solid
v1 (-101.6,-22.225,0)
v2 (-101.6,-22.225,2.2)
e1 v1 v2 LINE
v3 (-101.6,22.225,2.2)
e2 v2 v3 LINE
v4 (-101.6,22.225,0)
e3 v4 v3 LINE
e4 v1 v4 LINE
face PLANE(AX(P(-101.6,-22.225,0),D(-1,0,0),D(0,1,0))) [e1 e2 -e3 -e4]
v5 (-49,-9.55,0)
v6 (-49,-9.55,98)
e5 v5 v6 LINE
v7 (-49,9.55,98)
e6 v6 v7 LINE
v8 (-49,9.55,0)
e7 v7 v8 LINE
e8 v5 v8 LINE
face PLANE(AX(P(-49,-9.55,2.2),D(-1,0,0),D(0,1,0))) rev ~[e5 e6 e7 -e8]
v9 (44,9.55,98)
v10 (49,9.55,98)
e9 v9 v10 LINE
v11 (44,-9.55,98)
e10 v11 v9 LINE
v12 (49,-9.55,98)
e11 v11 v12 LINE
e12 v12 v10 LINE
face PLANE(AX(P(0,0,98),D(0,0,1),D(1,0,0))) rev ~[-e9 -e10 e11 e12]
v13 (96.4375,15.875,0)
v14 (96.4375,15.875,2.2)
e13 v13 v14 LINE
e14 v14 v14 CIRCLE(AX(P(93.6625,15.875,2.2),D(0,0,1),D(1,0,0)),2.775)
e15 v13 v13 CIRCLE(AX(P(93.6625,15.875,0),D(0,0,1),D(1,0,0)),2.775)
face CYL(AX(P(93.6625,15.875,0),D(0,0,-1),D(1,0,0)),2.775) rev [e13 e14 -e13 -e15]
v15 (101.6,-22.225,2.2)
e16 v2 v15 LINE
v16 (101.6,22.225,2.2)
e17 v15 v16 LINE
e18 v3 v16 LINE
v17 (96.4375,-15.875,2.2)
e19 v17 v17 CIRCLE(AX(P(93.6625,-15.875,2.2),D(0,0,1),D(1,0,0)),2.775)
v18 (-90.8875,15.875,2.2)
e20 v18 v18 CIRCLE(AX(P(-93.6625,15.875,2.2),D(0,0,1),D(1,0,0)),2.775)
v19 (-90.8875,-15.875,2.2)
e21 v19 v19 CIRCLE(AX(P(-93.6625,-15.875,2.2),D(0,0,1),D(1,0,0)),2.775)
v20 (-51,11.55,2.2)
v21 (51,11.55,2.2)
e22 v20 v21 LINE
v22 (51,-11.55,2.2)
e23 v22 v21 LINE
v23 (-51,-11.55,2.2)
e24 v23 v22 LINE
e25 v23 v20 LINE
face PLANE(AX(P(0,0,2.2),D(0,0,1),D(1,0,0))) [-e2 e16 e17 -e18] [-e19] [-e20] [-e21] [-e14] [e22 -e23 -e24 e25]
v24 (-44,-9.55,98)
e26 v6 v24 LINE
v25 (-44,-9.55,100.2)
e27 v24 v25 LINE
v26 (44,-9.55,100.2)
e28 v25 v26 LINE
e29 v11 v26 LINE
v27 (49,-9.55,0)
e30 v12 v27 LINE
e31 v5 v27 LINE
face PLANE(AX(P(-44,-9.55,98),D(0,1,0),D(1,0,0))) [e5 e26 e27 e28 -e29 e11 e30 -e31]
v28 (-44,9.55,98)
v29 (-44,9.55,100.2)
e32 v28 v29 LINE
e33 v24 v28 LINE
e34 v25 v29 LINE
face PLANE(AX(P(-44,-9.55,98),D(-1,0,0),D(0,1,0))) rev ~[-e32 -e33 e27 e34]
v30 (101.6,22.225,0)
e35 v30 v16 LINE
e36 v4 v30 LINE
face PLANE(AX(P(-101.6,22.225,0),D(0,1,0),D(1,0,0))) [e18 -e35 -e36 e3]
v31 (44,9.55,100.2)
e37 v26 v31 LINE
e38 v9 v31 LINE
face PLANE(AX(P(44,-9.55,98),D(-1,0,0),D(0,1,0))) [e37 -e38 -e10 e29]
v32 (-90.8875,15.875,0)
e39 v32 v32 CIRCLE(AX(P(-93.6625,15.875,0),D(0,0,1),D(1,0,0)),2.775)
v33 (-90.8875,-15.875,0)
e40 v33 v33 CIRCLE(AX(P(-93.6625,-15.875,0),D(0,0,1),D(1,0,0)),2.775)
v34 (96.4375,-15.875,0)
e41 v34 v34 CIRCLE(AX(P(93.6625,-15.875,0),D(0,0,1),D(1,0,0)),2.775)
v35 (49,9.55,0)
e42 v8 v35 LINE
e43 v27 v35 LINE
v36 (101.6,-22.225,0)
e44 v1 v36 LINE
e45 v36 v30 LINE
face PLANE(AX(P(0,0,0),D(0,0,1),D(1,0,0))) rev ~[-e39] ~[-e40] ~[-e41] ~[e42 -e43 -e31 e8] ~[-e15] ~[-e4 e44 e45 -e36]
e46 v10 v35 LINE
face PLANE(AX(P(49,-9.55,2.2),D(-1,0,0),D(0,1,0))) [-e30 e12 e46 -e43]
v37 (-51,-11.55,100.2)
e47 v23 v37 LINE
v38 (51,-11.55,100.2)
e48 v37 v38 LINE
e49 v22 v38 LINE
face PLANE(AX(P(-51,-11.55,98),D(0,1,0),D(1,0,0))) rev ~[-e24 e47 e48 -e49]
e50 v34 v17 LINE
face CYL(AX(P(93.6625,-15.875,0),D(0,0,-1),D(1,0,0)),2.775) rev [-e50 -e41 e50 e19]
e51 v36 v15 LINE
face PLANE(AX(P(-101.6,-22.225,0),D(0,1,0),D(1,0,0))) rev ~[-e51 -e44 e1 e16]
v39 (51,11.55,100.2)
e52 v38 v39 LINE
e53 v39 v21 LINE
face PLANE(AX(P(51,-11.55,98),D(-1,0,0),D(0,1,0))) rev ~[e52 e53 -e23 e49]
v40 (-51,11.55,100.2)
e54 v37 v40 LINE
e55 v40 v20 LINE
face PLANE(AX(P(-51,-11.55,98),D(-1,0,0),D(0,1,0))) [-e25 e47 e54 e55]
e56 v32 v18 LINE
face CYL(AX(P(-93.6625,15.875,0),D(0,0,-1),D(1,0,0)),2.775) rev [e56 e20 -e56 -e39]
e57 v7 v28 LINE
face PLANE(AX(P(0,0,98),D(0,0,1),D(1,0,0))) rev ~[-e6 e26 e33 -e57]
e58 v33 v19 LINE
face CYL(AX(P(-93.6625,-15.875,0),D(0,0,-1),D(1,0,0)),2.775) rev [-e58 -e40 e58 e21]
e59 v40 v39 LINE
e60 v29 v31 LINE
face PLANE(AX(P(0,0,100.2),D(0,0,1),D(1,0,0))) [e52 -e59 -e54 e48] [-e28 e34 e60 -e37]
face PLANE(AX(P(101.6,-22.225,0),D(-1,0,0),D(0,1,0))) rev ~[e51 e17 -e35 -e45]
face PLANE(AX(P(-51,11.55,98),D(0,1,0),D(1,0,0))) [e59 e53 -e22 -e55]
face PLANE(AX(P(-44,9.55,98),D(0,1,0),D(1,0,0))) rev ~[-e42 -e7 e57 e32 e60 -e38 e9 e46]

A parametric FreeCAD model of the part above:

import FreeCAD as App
import Part
import Sketcher

V = App.Vector
Q = App.Units.Quantity

doc = App.newDocument("Part")
params = doc.addObject("Spreadsheet::Sheet", "Params")
for row, (alias, value) in enumerate([
    ("sketch1_diameter", "5.55 mm"),
    ("sketch1_width", "98 mm"),
    ("sketch1_width2", "203.2 mm"),
    ("sketch1_height", "19.1 mm"),
    ("sketch1_height2", "44.45 mm"),
    ("pad1_length", "2.2 mm"),
    ("sketch2_width", "102 mm"),
    ("sketch2_width2", "98 mm"),
    ("sketch2_height", "23.1 mm"),
    ("sketch2_height2", "19.1 mm"),
    ("pad2_length", "95.8 mm"),
    ("sketch3_width", "102 mm"),
    ("sketch3_width2", "88 mm"),
    ("sketch3_height", "23.1 mm"),
    ("sketch3_height2", "19.1 mm"),
    ("pad3_length", "2.2 mm"),
], start=1):
    params.set(f"A{row}", alias)
    params.set(f"B{row}", "=" + value)
    params.setAlias(f"B{row}", alias)

body = doc.addObject("PartDesign::Body", "Body")

sketch1 = body.newObject("Sketcher::SketchObject", "Sketch")
sketch1.AttachmentSupport = (doc.getObject("XY_Plane"), [""])
sketch1.MapMode = "FlatFace"
sketch1.addGeometry(Part.LineSegment(V(-101.6, 22.2, 0), V(-101.6, -22.2, 0)), False)
sketch1.addGeometry(Part.LineSegment(V(-101.6, -22.2, 0), V(101.6, -22.2, 0)), False)
sketch1.addGeometry(Part.LineSegment(V(101.6, -22.2, 0), V(101.6, 22.2, 0)), False)
sketch1.addGeometry(Part.LineSegment(V(101.6, 22.2, 0), V(-101.6, 22.2, 0)), False)
sketch1.addGeometry(Part.Circle(V(-93.7, -15.9, 0), V(0, 0, 1), 2.8), False)
sketch1.addGeometry(Part.Circle(V(93.7, -15.9, 0), V(0, 0, 1), 2.8), False)
sketch1.addGeometry(Part.LineSegment(V(49, -9.6, 0), V(-49, -9.6, 0)), False)
sketch1.addGeometry(Part.LineSegment(V(-49, -9.6, 0), V(-49, 9.6, 0)), False)
sketch1.addGeometry(Part.LineSegment(V(-49, 9.6, 0), V(49, 9.6, 0)), False)
sketch1.addGeometry(Part.LineSegment(V(49, 9.6, 0), V(49, -9.6, 0)), False)
sketch1.addGeometry(Part.Circle(V(-93.7, 15.9, 0), V(0, 0, 1), 2.8), False)
sketch1.addGeometry(Part.Circle(V(93.7, 15.9, 0), V(0, 0, 1), 2.8), False)
sketch1.addConstraint(Sketcher.Constraint("Coincident", 0, 2, 1, 1))
sketch1.addConstraint(Sketcher.Constraint("Coincident", 1, 2, 2, 1))
sketch1.addConstraint(Sketcher.Constraint("Coincident", 2, 2, 3, 1))
sketch1.addConstraint(Sketcher.Constraint("Coincident", 3, 2, 0, 1))
sketch1.addConstraint(Sketcher.Constraint("Coincident", 6, 2, 7, 1))
sketch1.addConstraint(Sketcher.Constraint("Coincident", 7, 2, 8, 1))
sketch1.addConstraint(Sketcher.Constraint("Coincident", 8, 2, 9, 1))
sketch1.addConstraint(Sketcher.Constraint("Coincident", 9, 2, 6, 1))
sketch1.addConstraint(Sketcher.Constraint("Vertical", 0))
sketch1.addConstraint(Sketcher.Constraint("Horizontal", 1))
sketch1.addConstraint(Sketcher.Constraint("Vertical", 2))
sketch1.addConstraint(Sketcher.Constraint("Horizontal", 3))
sketch1.addConstraint(Sketcher.Constraint("Horizontal", 6))
sketch1.addConstraint(Sketcher.Constraint("Vertical", 7))
sketch1.addConstraint(Sketcher.Constraint("Horizontal", 8))
sketch1.addConstraint(Sketcher.Constraint("Vertical", 9))
sketch1.addConstraint(Sketcher.Constraint("Equal", 4, 5))
sketch1.addConstraint(Sketcher.Constraint("Equal", 5, 10))
sketch1.addConstraint(Sketcher.Constraint("Equal", 10, 11))
sketch1.addConstraint(Sketcher.Constraint("Symmetric", 5, 3, 10, 3, -1, 1))
sketch1.addConstraint(Sketcher.Constraint("Symmetric", 4, 3, 11, 3, -1, 1))
sketch1.addConstraint(Sketcher.Constraint("Symmetric", 0, 2, 2, 2, -1, 1))
sketch1.addConstraint(Sketcher.Constraint("Symmetric", 6, 2, 8, 2, -1, 1))
sketch1.addConstraint(Sketcher.Constraint("Symmetric", 4, 3, 5, 3, -2))
sketch1.addConstraint(Sketcher.Constraint("Diameter", 4, Q("5.55 mm")))
sketch1.addConstraint(Sketcher.Constraint("DistanceX", 6, 2, 6, 1, Q("98 mm")))
sketch1.addConstraint(Sketcher.Constraint("DistanceX", 1, 1, 1, 2, Q("203.2 mm")))
sketch1.addConstraint(Sketcher.Constraint("DistanceY", 7, 1, 7, 2, Q("19.1 mm")))
sketch1.addConstraint(Sketcher.Constraint("DistanceY", 0, 2, 0, 1, Q("44.45 mm")))
sketch1.addConstraint(Sketcher.Constraint("DistanceY", 0, 2, 10, 3, Q("38.1 mm")))
sketch1.addConstraint(Sketcher.Constraint("DistanceX", 4, 3, 5, 3, Q("187.325 mm")))
sketch1.setExpression("Constraints[24]", "Params.sketch1_diameter")
sketch1.setExpression("Constraints[25]", "Params.sketch1_width")
sketch1.setExpression("Constraints[26]", "Params.sketch1_width2")
sketch1.setExpression("Constraints[27]", "Params.sketch1_height")
sketch1.setExpression("Constraints[28]", "Params.sketch1_height2")
pad1 = body.newObject("PartDesign::Pad", "Pad")
pad1.Profile = sketch1
pad1.setExpression("Length", "Params.pad1_length")

sketch2 = body.newObject("Sketcher::SketchObject", "Sketch001")
sketch2.AttachmentSupport = (doc.getObject("XY_Plane"), [""])
sketch2.MapMode = "FlatFace"
sketch2.AttachmentOffset = App.Placement(V(0, 0, 2.2), App.Rotation())
sketch2.addGeometry(Part.LineSegment(V(-51, 12, 0), V(-51, -12, 0)), False)
sketch2.addGeometry(Part.LineSegment(V(-51, -12, 0), V(51, -12, 0)), False)
sketch2.addGeometry(Part.LineSegment(V(51, -12, 0), V(51, 12, 0)), False)
sketch2.addGeometry(Part.LineSegment(V(51, 12, 0), V(-51, 12, 0)), False)
sketch2.addGeometry(Part.LineSegment(V(49, -10, 0), V(-49, -10, 0)), False)
sketch2.addGeometry(Part.LineSegment(V(-49, -10, 0), V(-49, 10, 0)), False)
sketch2.addGeometry(Part.LineSegment(V(-49, 10, 0), V(49, 10, 0)), False)
sketch2.addGeometry(Part.LineSegment(V(49, 10, 0), V(49, -10, 0)), False)
sketch2.addConstraint(Sketcher.Constraint("Coincident", 0, 2, 1, 1))
sketch2.addConstraint(Sketcher.Constraint("Coincident", 1, 2, 2, 1))
sketch2.addConstraint(Sketcher.Constraint("Coincident", 2, 2, 3, 1))
sketch2.addConstraint(Sketcher.Constraint("Coincident", 3, 2, 0, 1))
sketch2.addConstraint(Sketcher.Constraint("Coincident", 4, 2, 5, 1))
sketch2.addConstraint(Sketcher.Constraint("Coincident", 5, 2, 6, 1))
sketch2.addConstraint(Sketcher.Constraint("Coincident", 6, 2, 7, 1))
sketch2.addConstraint(Sketcher.Constraint("Coincident", 7, 2, 4, 1))
sketch2.addConstraint(Sketcher.Constraint("Vertical", 0))
sketch2.addConstraint(Sketcher.Constraint("Horizontal", 1))
sketch2.addConstraint(Sketcher.Constraint("Vertical", 2))
sketch2.addConstraint(Sketcher.Constraint("Horizontal", 3))
sketch2.addConstraint(Sketcher.Constraint("Horizontal", 4))
sketch2.addConstraint(Sketcher.Constraint("Vertical", 5))
sketch2.addConstraint(Sketcher.Constraint("Horizontal", 6))
sketch2.addConstraint(Sketcher.Constraint("Vertical", 7))
sketch2.addConstraint(Sketcher.Constraint("Symmetric", 0, 2, 2, 2, -1, 1))
sketch2.addConstraint(Sketcher.Constraint("Symmetric", 4, 2, 6, 2, -1, 1))
sketch2.addConstraint(Sketcher.Constraint("DistanceX", 1, 1, 1, 2, Q("102 mm")))
sketch2.addConstraint(Sketcher.Constraint("DistanceX", 4, 2, 4, 1, Q("98 mm")))
sketch2.addConstraint(Sketcher.Constraint("DistanceY", 0, 2, 0, 1, Q("23.1 mm")))
sketch2.addConstraint(Sketcher.Constraint("DistanceY", 5, 1, 5, 2, Q("19.1 mm")))
sketch2.setExpression("Constraints[18]", "Params.sketch2_width")
sketch2.setExpression("Constraints[19]", "Params.sketch2_width2")
sketch2.setExpression("Constraints[20]", "Params.sketch2_height")
sketch2.setExpression("Constraints[21]", "Params.sketch2_height2")
pad2 = body.newObject("PartDesign::Pad", "Pad001")
pad2.Profile = sketch2
pad2.setExpression("Length", "Params.pad2_length")

sketch3 = body.newObject("Sketcher::SketchObject", "Sketch002")
sketch3.AttachmentSupport = (doc.getObject("XY_Plane"), [""])
sketch3.MapMode = "FlatFace"
sketch3.AttachmentOffset = App.Placement(V(0, 0, 98), App.Rotation())
sketch3.addGeometry(Part.LineSegment(V(-51, 12, 0), V(-51, -12, 0)), False)
sketch3.addGeometry(Part.LineSegment(V(-51, -12, 0), V(51, -12, 0)), False)
sketch3.addGeometry(Part.LineSegment(V(51, -12, 0), V(51, 12, 0)), False)
sketch3.addGeometry(Part.LineSegment(V(51, 12, 0), V(-51, 12, 0)), False)
sketch3.addGeometry(Part.LineSegment(V(44, -10, 0), V(-44, -10, 0)), False)
sketch3.addGeometry(Part.LineSegment(V(-44, -10, 0), V(-44, 10, 0)), False)
sketch3.addGeometry(Part.LineSegment(V(-44, 10, 0), V(44, 10, 0)), False)
sketch3.addGeometry(Part.LineSegment(V(44, 10, 0), V(44, -10, 0)), False)
sketch3.addConstraint(Sketcher.Constraint("Coincident", 0, 2, 1, 1))
sketch3.addConstraint(Sketcher.Constraint("Coincident", 1, 2, 2, 1))
sketch3.addConstraint(Sketcher.Constraint("Coincident", 2, 2, 3, 1))
sketch3.addConstraint(Sketcher.Constraint("Coincident", 3, 2, 0, 1))
sketch3.addConstraint(Sketcher.Constraint("Coincident", 4, 2, 5, 1))
sketch3.addConstraint(Sketcher.Constraint("Coincident", 5, 2, 6, 1))
sketch3.addConstraint(Sketcher.Constraint("Coincident", 6, 2, 7, 1))
sketch3.addConstraint(Sketcher.Constraint("Coincident", 7, 2, 4, 1))
sketch3.addConstraint(Sketcher.Constraint("Vertical", 0))
sketch3.addConstraint(Sketcher.Constraint("Horizontal", 1))
sketch3.addConstraint(Sketcher.Constraint("Vertical", 2))
sketch3.addConstraint(Sketcher.Constraint("Horizontal", 3))
sketch3.addConstraint(Sketcher.Constraint("Horizontal", 4))
sketch3.addConstraint(Sketcher.Constraint("Vertical", 5))
sketch3.addConstraint(Sketcher.Constraint("Horizontal", 6))
sketch3.addConstraint(Sketcher.Constraint("Vertical", 7))
sketch3.addConstraint(Sketcher.Constraint("Symmetric", 0, 2, 2, 2, -1, 1))
sketch3.addConstraint(Sketcher.Constraint("Symmetric", 4, 2, 6, 2, -1, 1))
sketch3.addConstraint(Sketcher.Constraint("DistanceX", 1, 1, 1, 2, Q("102 mm")))
sketch3.addConstraint(Sketcher.Constraint("DistanceX", 4, 2, 4, 1, Q("88 mm")))
sketch3.addConstraint(Sketcher.Constraint("DistanceY", 0, 2, 0, 1, Q("23.1 mm")))
sketch3.addConstraint(Sketcher.Constraint("DistanceY", 5, 1, 5, 2, Q("19.1 mm")))
sketch3.setExpression("Constraints[18]", "Params.sketch3_width")
sketch3.setExpression("Constraints[19]", "Params.sketch3_width2")
sketch3.setExpression("Constraints[20]", "Params.sketch3_height")
sketch3.setExpression("Constraints[21]", "Params.sketch3_height2")
pad3 = body.newObject("PartDesign::Pad", "Pad002")
pad3.Profile = sketch3
pad3.setExpression("Length", "Params.pad3_length")

doc.recompute()
